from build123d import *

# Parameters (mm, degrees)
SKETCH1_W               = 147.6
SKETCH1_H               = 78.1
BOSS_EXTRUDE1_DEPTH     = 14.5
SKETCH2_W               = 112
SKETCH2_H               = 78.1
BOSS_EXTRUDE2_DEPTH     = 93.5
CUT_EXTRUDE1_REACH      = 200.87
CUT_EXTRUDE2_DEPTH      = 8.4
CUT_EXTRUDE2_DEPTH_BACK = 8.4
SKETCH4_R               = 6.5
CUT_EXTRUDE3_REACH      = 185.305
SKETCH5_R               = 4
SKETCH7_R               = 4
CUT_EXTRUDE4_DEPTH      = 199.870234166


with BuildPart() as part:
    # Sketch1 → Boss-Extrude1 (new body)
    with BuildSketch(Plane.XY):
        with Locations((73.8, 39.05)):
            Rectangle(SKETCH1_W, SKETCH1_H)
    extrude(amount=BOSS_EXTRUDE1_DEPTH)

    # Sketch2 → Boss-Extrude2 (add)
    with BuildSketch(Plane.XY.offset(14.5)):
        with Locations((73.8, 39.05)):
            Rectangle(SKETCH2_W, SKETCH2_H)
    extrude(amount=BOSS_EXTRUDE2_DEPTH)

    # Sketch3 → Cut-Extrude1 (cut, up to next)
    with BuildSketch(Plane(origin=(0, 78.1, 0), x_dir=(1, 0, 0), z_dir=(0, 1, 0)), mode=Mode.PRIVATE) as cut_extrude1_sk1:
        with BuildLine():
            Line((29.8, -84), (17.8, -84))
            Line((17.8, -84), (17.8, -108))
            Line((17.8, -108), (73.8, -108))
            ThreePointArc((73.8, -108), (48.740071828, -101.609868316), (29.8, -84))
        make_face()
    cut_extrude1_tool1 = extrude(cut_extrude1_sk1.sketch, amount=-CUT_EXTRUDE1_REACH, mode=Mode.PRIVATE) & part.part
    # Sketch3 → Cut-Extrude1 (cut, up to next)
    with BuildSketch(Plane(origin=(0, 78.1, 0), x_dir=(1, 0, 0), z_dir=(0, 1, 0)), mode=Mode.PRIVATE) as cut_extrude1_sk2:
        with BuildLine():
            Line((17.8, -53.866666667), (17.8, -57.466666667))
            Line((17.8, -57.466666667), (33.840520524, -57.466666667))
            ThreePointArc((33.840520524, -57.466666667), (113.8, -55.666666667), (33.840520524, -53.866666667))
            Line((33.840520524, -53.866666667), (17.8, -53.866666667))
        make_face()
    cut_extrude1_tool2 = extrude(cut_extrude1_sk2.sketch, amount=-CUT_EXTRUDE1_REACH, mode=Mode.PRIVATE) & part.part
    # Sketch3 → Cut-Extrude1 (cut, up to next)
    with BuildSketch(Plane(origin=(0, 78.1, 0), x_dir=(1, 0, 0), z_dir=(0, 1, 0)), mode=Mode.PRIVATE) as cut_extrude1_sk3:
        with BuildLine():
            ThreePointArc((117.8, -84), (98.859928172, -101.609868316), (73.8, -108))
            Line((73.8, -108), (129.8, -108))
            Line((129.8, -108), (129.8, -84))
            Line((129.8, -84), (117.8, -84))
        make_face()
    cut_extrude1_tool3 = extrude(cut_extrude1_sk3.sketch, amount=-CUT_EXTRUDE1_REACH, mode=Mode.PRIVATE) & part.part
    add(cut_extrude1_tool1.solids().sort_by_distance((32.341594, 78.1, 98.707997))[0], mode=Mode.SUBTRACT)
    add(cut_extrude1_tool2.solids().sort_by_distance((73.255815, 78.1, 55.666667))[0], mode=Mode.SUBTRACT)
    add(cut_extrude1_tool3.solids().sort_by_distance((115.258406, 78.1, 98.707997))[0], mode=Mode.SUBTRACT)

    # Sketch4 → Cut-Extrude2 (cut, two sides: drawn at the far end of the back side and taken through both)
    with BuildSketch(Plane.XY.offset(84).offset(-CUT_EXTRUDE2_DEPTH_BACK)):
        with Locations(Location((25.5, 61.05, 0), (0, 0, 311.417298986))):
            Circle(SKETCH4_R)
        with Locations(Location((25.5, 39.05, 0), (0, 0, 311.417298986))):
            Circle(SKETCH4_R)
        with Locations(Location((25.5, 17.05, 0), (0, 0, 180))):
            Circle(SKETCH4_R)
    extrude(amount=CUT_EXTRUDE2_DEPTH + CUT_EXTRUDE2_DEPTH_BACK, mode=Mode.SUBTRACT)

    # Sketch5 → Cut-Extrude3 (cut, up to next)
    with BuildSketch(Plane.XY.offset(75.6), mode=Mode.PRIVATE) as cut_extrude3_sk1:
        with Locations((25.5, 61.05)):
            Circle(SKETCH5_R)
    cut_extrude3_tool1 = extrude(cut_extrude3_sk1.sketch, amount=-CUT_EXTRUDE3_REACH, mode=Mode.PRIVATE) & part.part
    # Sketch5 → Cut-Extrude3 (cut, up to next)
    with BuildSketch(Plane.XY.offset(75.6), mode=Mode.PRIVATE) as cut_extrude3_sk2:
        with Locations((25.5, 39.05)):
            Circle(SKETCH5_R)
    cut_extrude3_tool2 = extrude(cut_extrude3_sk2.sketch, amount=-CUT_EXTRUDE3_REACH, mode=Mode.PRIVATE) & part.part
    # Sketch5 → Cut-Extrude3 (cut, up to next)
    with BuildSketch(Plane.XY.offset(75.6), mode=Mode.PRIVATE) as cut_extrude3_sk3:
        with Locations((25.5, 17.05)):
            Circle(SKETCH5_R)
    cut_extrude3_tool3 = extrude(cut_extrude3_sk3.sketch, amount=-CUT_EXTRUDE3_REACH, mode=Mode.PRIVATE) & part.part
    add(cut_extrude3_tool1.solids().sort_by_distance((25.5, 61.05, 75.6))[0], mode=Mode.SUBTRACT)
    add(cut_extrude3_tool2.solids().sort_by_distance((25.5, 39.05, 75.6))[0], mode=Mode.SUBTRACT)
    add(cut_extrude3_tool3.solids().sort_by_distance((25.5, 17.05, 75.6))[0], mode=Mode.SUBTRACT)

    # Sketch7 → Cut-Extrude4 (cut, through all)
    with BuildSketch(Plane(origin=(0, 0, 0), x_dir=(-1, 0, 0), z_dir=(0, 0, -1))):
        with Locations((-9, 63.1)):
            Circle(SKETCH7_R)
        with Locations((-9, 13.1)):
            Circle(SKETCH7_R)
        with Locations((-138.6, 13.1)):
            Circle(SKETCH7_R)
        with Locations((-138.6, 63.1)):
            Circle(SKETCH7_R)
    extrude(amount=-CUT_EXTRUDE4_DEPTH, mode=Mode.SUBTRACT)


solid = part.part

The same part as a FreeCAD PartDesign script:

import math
import FreeCAD as App
import Part
import Sketcher
from FreeCAD import Vector


def add_polygon(sketch, points):
    """Adds a closed chain of lines whose ends are joined by coincident constraints."""
    first, n = sketch.GeometryCount, len(points)
    for a, b in zip(points, points[1:] + points[:1]):
        sketch.addGeometry(Part.LineSegment(App.Vector(*a, 0), App.Vector(*b, 0)), False)
    for i in range(n):
        sketch.addConstraint(Sketcher.Constraint("Coincident", first + i, 2, first + (i + 1) % n, 1))

doc = App.newDocument("Part")
body = doc.addObject("PartDesign::Body", "Body")

sketch1 = doc.addObject("Sketcher::SketchObject", "Sketch")
body.addObject(sketch1)
sketch1.AttachmentSupport = (doc.XY_Plane, [""])
sketch1.MapMode = "FlatFace"
add_polygon(sketch1, [(0, 78.1), (0, 0), (147.6, 0), (147.6, 78.1)])
sketch1.addConstraint(Sketcher.Constraint("Vertical", 0))
sketch1.addConstraint(Sketcher.Constraint("Horizontal", 1))
sketch1.addConstraint(Sketcher.Constraint("Vertical", 2))
sketch1.addConstraint(Sketcher.Constraint("Horizontal", 3))
sketch1.addConstraint(Sketcher.Constraint("Coincident", 0, 2, -1, 1))
sketch1.addConstraint(Sketcher.Constraint("DistanceX", 1, 1, 1, 2, 147.6))
sketch1.addConstraint(Sketcher.Constraint("DistanceY", 0, 2, 0, 1, 78.1))
pad1 = doc.addObject("PartDesign::Pad", "Pad")
body.addObject(pad1)
pad1.Profile = sketch1
pad1.Length = 14.5

sketch2 = doc.addObject("Sketcher::SketchObject", "Sketch001")
body.addObject(sketch2)
sketch2.AttachmentSupport = (doc.XY_Plane, [""])
sketch2.MapMode = "FlatFace"
sketch2.AttachmentOffset = App.Placement(Vector(0, 0, 14.5), App.Rotation())
add_polygon(sketch2, [(17.8, 78.1), (17.8, 0), (129.8, 0), (129.8, 78.1)])
sketch2.addConstraint(Sketcher.Constraint("Vertical", 0))
sketch2.addConstraint(Sketcher.Constraint("Horizontal", 1))
sketch2.addConstraint(Sketcher.Constraint("Vertical", 2))
sketch2.addConstraint(Sketcher.Constraint("Horizontal", 3))
sketch2.addConstraint(Sketcher.Constraint("PointOnObject", 0, 2, -1))
sketch2.addConstraint(Sketcher.Constraint("DistanceX", 1, 1, 1, 2, 112.0))
sketch2.addConstraint(Sketcher.Constraint("DistanceY", 0, 2, 0, 1, 78.1))
sketch2.addConstraint(Sketcher.Constraint("DistanceX", -1, 1, 0, 2, 17.8))
pad2 = doc.addObject("PartDesign::Pad", "Pad001")
body.addObject(pad2)
pad2.Profile = sketch2
pad2.Length = 93.5

sketch3 = doc.addObject("Sketcher::SketchObject", "Sketch002")
body.addObject(sketch3)
sketch3.AttachmentSupport = (doc.XZ_Plane, [""])
sketch3.MapMode = "FlatFace"
sketch3.AttachmentOffset = App.Placement(Vector(0, 0, -78.1), App.Rotation())
sketch3.addGeometry(Part.LineSegment(Vector(29.8, 84, 0), Vector(17.8, 84, 0)), False)
sketch3.addGeometry(Part.LineSegment(Vector(17.8, 84, 0), Vector(17.8, 108, 0)), False)
sketch3.addGeometry(Part.LineSegment(Vector(17.8, 108, 0), Vector(73.8, 108, 0)), False)
sketch3.addGeometry(Part.ArcOfCircle(Part.Circle(Vector(73.8, 55.666667, 0), Vector(0, 0, 1), 52.333333), math.radians(90), math.radians(147.220919)), False)
sketch3.addConstraint(Sketcher.Constraint("Coincident", 0, 2, 1, 1))
sketch3.addConstraint(Sketcher.Constraint("Coincident", 1, 2, 2, 1))
sketch3.addConstraint(Sketcher.Constraint("Tangent", 2, 2, 3, 1))
sketch3.addConstraint(Sketcher.Constraint("Coincident", 3, 2, 0, 1))
sketch3.addConstraint(Sketcher.Constraint("Horizontal", 0))
sketch3.addConstraint(Sketcher.Constraint("Vertical", 1))
sketch3.addConstraint(Sketcher.Constraint("Horizontal", 2))
sketch3.addConstraint(Sketcher.Constraint("DistanceX", 0, 2, 0, 1, 12.0))
sketch3.addConstraint(Sketcher.Constraint("DistanceX", 2, 1, 2, 2, 56.0))
sketch3.addConstraint(Sketcher.Constraint("DistanceY", 1, 1, 1, 2, 24.0))
sketch3.addConstraint(Sketcher.Constraint("DistanceY", -1, 1, 0, 2, 84.0))
sketch3.addConstraint(Sketcher.Constraint("DistanceX", -1, 1, 3, 3, 73.8))
pocket1 = doc.addObject("PartDesign::Pocket", "Pocket")
body.addObject(pocket1)
pocket1.Profile = sketch3
pocket1.Type = "UpToFirst"
pocket1.Reversed = True

sketch4 = doc.addObject("Sketcher::SketchObject", "Sketch003")
body.addObject(sketch4)
sketch4.AttachmentSupport = (doc.XZ_Plane, [""])
sketch4.MapMode = "FlatFace"
sketch4.AttachmentOffset = App.Placement(Vector(0, 0, -78.1), App.Rotation())
sketch4.addGeometry(Part.LineSegment(Vector(17.8, 53.866667, 0), Vector(17.8, 57.466667, 0)), False)
sketch4.addGeometry(Part.LineSegment(Vector(17.8, 57.466667, 0), Vector(33.840521, 57.466667, 0)), False)
sketch4.addGeometry(Part.ArcOfCircle(Part.Circle(Vector(73.8, 55.666667, 0), Vector(0, 0, 1), 40), math.radians(-177.420819), math.radians(177.420819)), False)
sketch4.addGeometry(Part.LineSegment(Vector(33.840521, 53.866667, 0), Vector(17.8, 53.866667, 0)), False)
sketch4.addConstraint(Sketcher.Constraint("Coincident", 0, 2, 1, 1))
sketch4.addConstraint(Sketcher.Constraint("Coincident", 1, 2, 2, 2))
sketch4.addConstraint(Sketcher.Constraint("Coincident", 2, 1, 3, 1))
sketch4.addConstraint(Sketcher.Constraint("Coincident", 3, 2, 0, 1))
sketch4.addConstraint(Sketcher.Constraint("Vertical", 0))
sketch4.addConstraint(Sketcher.Constraint("Horizontal", 1))
sketch4.addConstraint(Sketcher.Constraint("Horizontal", 3))
sketch4.addConstraint(Sketcher.Constraint("Vertical", 1, 2, 2, 1))
sketch4.addConstraint(Sketcher.Constraint("Radius", 2, 40.0))
sketch4.addConstraint(Sketcher.Constraint("DistanceY", 0, 1, 0, 2, 3.6))
sketch4.addConstraint(Sketcher.Constraint("DistanceX", 0, 2, 2, 3, 56.0))
sketch4.addConstraint(Sketcher.Constraint("DistanceX", -1, 1, 2, 3, 73.8))
sketch4.addConstraint(Sketcher.Constraint("DistanceY", -1, 1, 2, 3, 55.666667))
pocket2 = doc.addObject("PartDesign::Pocket", "Pocket001")
body.addObject(pocket2)
pocket2.Profile = sketch4
pocket2.Type = "UpToFirst"
pocket2.Reversed = True

sketch5 = doc.addObject("Sketcher::SketchObject", "Sketch004")
body.addObject(sketch5)
sketch5.AttachmentSupport = (doc.XZ_Plane, [""])
sketch5.MapMode = "FlatFace"
sketch5.AttachmentOffset = App.Placement(Vector(0, 0, -78.1), App.Rotation())
sketch5.addGeometry(Part.ArcOfCircle(Part.Circle(Vector(73.8, 55.666667, 0), Vector(0, 0, 1), 52.333333), math.radians(32.779081), math.radians(90)), False)
sketch5.addGeometry(Part.LineSegment(Vector(73.8, 108, 0), Vector(129.8, 108, 0)), False)
sketch5.addGeometry(Part.LineSegment(Vector(129.8, 108, 0), Vector(129.8, 84, 0)), False)
sketch5.addGeometry(Part.LineSegment(Vector(129.8, 84, 0), Vector(117.8, 84, 0)), False)
sketch5.addConstraint(Sketcher.Constraint("Tangent", 0, 2, 1, 1))
sketch5.addConstraint(Sketcher.Constraint("Coincident", 1, 2, 2, 1))
sketch5.addConstraint(Sketcher.Constraint("Coincident", 2, 2, 3, 1))
sketch5.addConstraint(Sketcher.Constraint("Coincident", 3, 2, 0, 1))
sketch5.addConstraint(Sketcher.Constraint("Horizontal", 1))
sketch5.addConstraint(Sketcher.Constraint("Vertical", 2))
sketch5.addConstraint(Sketcher.Constraint("Horizontal", 3))
sketch5.addConstraint(Sketcher.Constraint("DistanceX", 1, 1, 1, 2, 56.0))
sketch5.addConstraint(Sketcher.Constraint("DistanceX", 3, 2, 3, 1, 12.0))
sketch5.addConstraint(Sketcher.Constraint("DistanceY", 2, 2, 2, 1, 24.0))
sketch5.addConstraint(Sketcher.Constraint("DistanceY", -1, 1, 0, 2, 108.0))
sketch5.addConstraint(Sketcher.Constraint("DistanceX", -1, 1, 0, 3, 73.8))
pocket3 = doc.addObject("PartDesign::Pocket", "Pocket002")
body.addObject(pocket3)
pocket3.Profile = sketch5
pocket3.Type = "UpToFirst"
pocket3.Reversed = True

sketch6 = doc.addObject("Sketcher::SketchObject", "Sketch005")
body.addObject(sketch6)
sketch6.AttachmentSupport = (doc.XY_Plane, [""])
sketch6.MapMode = "FlatFace"
sketch6.AttachmentOffset = App.Placement(Vector(0, 0, 84), App.Rotation())
sketch6.addGeometry(Part.Circle(Vector(25.5, 61.05, 0), Vector(0, 0, 1), 6.5), False)
sketch6.addGeometry(Part.Circle(Vector(25.5, 39.05, 0), Vector(0, 0, 1), 6.5), False)
sketch6.addGeometry(Part.Circle(Vector(25.5, 17.05, 0), Vector(0, 0, 1), 6.5), False)
sketch6.addConstraint(Sketcher.Constraint("Equal", 0, 1))
sketch6.addConstraint(Sketcher.Constraint("Equal", 1, 2))
sketch6.addConstraint(Sketcher.Constraint("Vertical", 0, 3, 1, 3))
sketch6.addConstraint(Sketcher.Constraint("Vertical", 1, 3, 2, 3))
sketch6.addConstraint(Sketcher.Constraint("Diameter", 0, 13.0))
sketch6.addConstraint(Sketcher.Constraint("DistanceY", 1, 3, 0, 3, 22.0))
sketch6.addConstraint(Sketcher.Constraint("DistanceY", 2, 3, 1, 3, 22.0))
sketch6.addConstraint(Sketcher.Constraint("DistanceX", -1, 1, 0, 3, 25.5))
sketch6.addConstraint(Sketcher.Constraint("DistanceY", -1, 1, 0, 3, 61.05))
pocket4 = doc.addObject("PartDesign::Pocket", "Pocket003")
body.addObject(pocket4)
pocket4.Profile = sketch6
pocket4.Type = "TwoLengths"
pocket4.Length = 8.4
pocket4.Length2 = 8.4
pocket4.Reversed = True

sketch7 = doc.addObject("Sketcher::SketchObject", "Sketch006")
body.addObject(sketch7)
sketch7.AttachmentSupport = (doc.XY_Plane, [""])
sketch7.MapMode = "FlatFace"
sketch7.AttachmentOffset = App.Placement(Vector(0, 0, 75.6), App.Rotation())
sketch7.addGeometry(Part.Circle(Vector(25.5, 61.05, 0), Vector(0, 0, 1), 4), False)
sketch7.addConstraint(Sketcher.Constraint("Diameter", 0, 8.0))
sketch7.addConstraint(Sketcher.Constraint("DistanceX", -1, 1, 0, 3, 25.5))
sketch7.addConstraint(Sketcher.Constraint("DistanceY", -1, 1, 0, 3, 61.05))
pocket5 = doc.addObject("PartDesign::Pocket", "Pocket004")
body.addObject(pocket5)
pocket5.Profile = sketch7
pocket5.Type = "UpToFirst"

sketch8 = doc.addObject("Sketcher::SketchObject", "Sketch007")
body.addObject(sketch8)
sketch8.AttachmentSupport = (doc.XY_Plane, [""])
sketch8.MapMode = "FlatFace"
sketch8.AttachmentOffset = App.Placement(Vector(0, 0, 75.6), App.Rotation())
sketch8.addGeometry(Part.Circle(Vector(25.5, 39.05, 0), Vector(0, 0, 1), 4), False)
sketch8.addConstraint(Sketcher.Constraint("Diameter", 0, 8.0))
sketch8.addConstraint(Sketcher.Constraint("DistanceX", -1, 1, 0, 3, 25.5))
sketch8.addConstraint(Sketcher.Constraint("DistanceY", -1, 1, 0, 3, 39.05))
pocket6 = doc.addObject("PartDesign::Pocket", "Pocket005")
body.addObject(pocket6)
pocket6.Profile = sketch8
pocket6.Type = "UpToFirst"

sketch9 = doc.addObject("Sketcher::SketchObject", "Sketch008")
body.addObject(sketch9)
sketch9.AttachmentSupport = (doc.XY_Plane, [""])
sketch9.MapMode = "FlatFace"
sketch9.AttachmentOffset = App.Placement(Vector(0, 0, 75.6), App.Rotation())
sketch9.addGeometry(Part.Circle(Vector(25.5, 17.05, 0), Vector(0, 0, 1), 4), False)
sketch9.addConstraint(Sketcher.Constraint("Diameter", 0, 8.0))
sketch9.addConstraint(Sketcher.Constraint("DistanceX", -1, 1, 0, 3, 25.5))
sketch9.addConstraint(Sketcher.Constraint("DistanceY", -1, 1, 0, 3, 17.05))
pocket7 = doc.addObject("PartDesign::Pocket", "Pocket006")
body.addObject(pocket7)
pocket7.Profile = sketch9
pocket7.Type = "UpToFirst"

sketch10 = doc.addObject("Sketcher::SketchObject", "Sketch009")
body.addObject(sketch10)
sketch10.AttachmentSupport = (doc.XY_Plane, [""])
sketch10.MapMode = "FlatFace"
sketch10.addGeometry(Part.Circle(Vector(9, 63.1, 0), Vector(0, 0, 1), 4), False)
sketch10.addGeometry(Part.Circle(Vector(9, 13.1, 0), Vector(0, 0, 1), 4), False)
sketch10.addGeometry(Part.Circle(Vector(138.6, 13.1, 0), Vector(0, 0, 1), 4), False)
sketch10.addGeometry(Part.Circle(Vector(138.6, 63.1, 0), Vector(0, 0, 1), 4), False)
sketch10.addConstraint(Sketcher.Constraint("Equal", 0, 1))
sketch10.addConstraint(Sketcher.Constraint("Equal", 1, 2))
sketch10.addConstraint(Sketcher.Constraint("Equal", 2, 3))
sketch10.addConstraint(Sketcher.Constraint("Horizontal", 1, 3, 2, 3))
sketch10.addConstraint(Sketcher.Constraint("Horizontal", 0, 3, 3, 3))
sketch10.addConstraint(Sketcher.Constraint("Vertical", 0, 3, 1, 3))
sketch10.addConstraint(Sketcher.Constraint("Vertical", 2, 3, 3, 3))
sketch10.addConstraint(Sketcher.Constraint("Diameter", 0, 8.0))
sketch10.addConstraint(Sketcher.Constraint("DistanceX", -1, 1, 0, 3, 9.0))
sketch10.addConstraint(Sketcher.Constraint("DistanceY", 1, 3, 0, 3, 50.0))
sketch10.addConstraint(Sketcher.Constraint("DistanceY", -1, 1, 0, 3, 63.1))
sketch10.addConstraint(Sketcher.Constraint("DistanceX", -1, 1, 2, 3, 138.6))
pocket8 = doc.addObject("PartDesign::Pocket", "Pocket007")
body.addObject(pocket8)
pocket8.Profile = sketch10
pocket8.Type = "ThroughAll"
pocket8.Reversed = True

doc.recompute()
